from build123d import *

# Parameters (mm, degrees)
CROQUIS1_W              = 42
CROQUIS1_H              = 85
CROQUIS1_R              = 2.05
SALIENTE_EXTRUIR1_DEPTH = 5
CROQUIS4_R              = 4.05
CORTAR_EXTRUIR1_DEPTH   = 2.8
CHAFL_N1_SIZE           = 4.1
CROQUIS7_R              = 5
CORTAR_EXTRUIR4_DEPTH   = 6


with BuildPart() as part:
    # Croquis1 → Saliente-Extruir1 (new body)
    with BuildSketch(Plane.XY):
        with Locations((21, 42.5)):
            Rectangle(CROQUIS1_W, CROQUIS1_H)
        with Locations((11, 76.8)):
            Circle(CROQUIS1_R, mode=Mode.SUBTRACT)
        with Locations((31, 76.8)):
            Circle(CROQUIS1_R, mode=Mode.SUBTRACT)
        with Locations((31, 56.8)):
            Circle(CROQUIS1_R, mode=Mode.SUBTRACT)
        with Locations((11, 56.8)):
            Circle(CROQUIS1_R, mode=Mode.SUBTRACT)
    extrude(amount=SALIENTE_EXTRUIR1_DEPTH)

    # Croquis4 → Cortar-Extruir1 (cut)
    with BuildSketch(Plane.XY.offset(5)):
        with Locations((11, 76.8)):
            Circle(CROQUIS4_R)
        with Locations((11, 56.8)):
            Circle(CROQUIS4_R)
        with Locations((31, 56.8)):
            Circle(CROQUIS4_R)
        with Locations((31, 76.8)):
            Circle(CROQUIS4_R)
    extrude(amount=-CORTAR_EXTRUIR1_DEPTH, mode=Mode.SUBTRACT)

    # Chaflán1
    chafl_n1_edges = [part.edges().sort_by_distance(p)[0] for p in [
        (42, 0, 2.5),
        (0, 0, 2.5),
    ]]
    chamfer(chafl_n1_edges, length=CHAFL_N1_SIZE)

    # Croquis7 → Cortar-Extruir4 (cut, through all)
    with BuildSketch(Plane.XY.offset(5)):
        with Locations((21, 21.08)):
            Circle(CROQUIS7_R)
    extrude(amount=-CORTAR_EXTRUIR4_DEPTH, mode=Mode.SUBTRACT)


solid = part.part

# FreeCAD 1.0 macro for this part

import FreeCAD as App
import Part
import Sketcher

V = App.Vector
Q = App.Units.Quantity


def edges_at(feature, points):
    """Names of the edges that pass closest to the given points."""
    edges = feature.Shape.Edges
    near = lambda p: min(range(len(edges)), key=lambda i: edges[i].distToShape(Part.Vertex(*p))[0])
    return sorted({f"Edge{near(p) + 1}" for p in points})


def add_polygon(sketch, points):
    """Adds a closed chain of lines whose ends are joined by coincident constraints."""
    first, n = sketch.GeometryCount, len(points)
    for a, b in zip(points, points[1:] + points[:1]):
        sketch.addGeometry(Part.LineSegment(App.Vector(*a, 0), App.Vector(*b, 0)), False)
    for i in range(n):
        sketch.addConstraint(Sketcher.Constraint("Coincident", first + i, 2, first + (i + 1) % n, 1))

doc = App.newDocument("Part")
params = doc.addObject("Spreadsheet::Sheet", "Params")
for row, (alias, value) in enumerate([
    ("sketch1_diameter", "4.1 mm"),
    ("sketch1_width", "42 mm"),
    ("sketch1_height", "85 mm"),
    ("pad1_length", "5 mm"),
    ("sketch2_diameter", "8.1 mm"),
    ("pocket1_length", "2.8 mm"),
    ("chamfer_size", "4.1 mm"),
    ("sketch3_diameter", "10 mm"),
], start=1):
    params.set(f"A{row}", alias)
    params.set(f"B{row}", "=" + value)
    params.setAlias(f"B{row}", alias)

body = doc.addObject("PartDesign::Body", "Body")

sketch1 = body.newObject("Sketcher::SketchObject", "Sketch")
sketch1.AttachmentSupport = (doc.getObject("XY_Plane"), [""])
sketch1.MapMode = "FlatFace"
add_polygon(sketch1, [(0, 85), (0, 0), (42, 0), (42, 85)])
sketch1.addGeometry(Part.Circle(V(11, 56.8, 0), V(0, 0, 1), 2), False)
sketch1.addGeometry(Part.Circle(V(31, 56.8, 0), V(0, 0, 1), 2), False)
sketch1.addGeometry(Part.Circle(V(11, 76.8, 0), V(0, 0, 1), 2), False)
sketch1.addGeometry(Part.Circle(V(31, 76.8, 0), V(0, 0, 1), 2), False)
sketch1.addConstraint([
    Sketcher.Constraint("Vertical", 0),
    Sketcher.Constraint("Horizontal", 1),
    Sketcher.Constraint("Vertical", 2),
    Sketcher.Constraint("Horizontal", 3),
    Sketcher.Constraint("Coincident", 0, 2, -1, 1),
    Sketcher.Constraint("Equal", 4, 5),
    Sketcher.Constraint("Equal", 5, 6),
    Sketcher.Constraint("Equal", 6, 7),
    Sketcher.Constraint("Horizontal", 4, 3, 5, 3),
    Sketcher.Constraint("Horizontal", 6, 3, 7, 3),
    Sketcher.Constraint("Vertical", 4, 3, 6, 3),
    Sketcher.Constraint("Vertical", 5, 3, 7, 3),
    Sketcher.Constraint("Diameter", 4, Q("4.1 mm")),
    Sketcher.Constraint("DistanceX", 1, 1, 1, 2, Q("42 mm")),
    Sketcher.Constraint("DistanceY", 0, 2, 0, 1, Q("85 mm")),
    Sketcher.Constraint("DistanceX", -1, 1, 4, 3, Q("11 mm")),
    Sketcher.Constraint("DistanceX", -1, 1, 5, 3, Q("31 mm")),
    Sketcher.Constraint("DistanceY", 4, 3, 6, 3, Q("20 mm")),
    Sketcher.Constraint("DistanceY", -1, 1, 4, 3, Q("56.8 mm")),
])
sketch1.setExpression("Constraints[16]", "Params.sketch1_diameter")
sketch1.setExpression("Constraints[17]", "Params.sketch1_width")
sketch1.setExpression("Constraints[18]", "Params.sketch1_height")
pad1 = body.newObject("PartDesign::Pad", "Pad")
pad1.Profile = sketch1
pad1.setExpression("Length", "Params.pad1_length")

sketch2 = body.newObject("Sketcher::SketchObject", "Sketch001")
sketch2.AttachmentSupport = (doc.getObject("XY_Plane"), [""])
sketch2.MapMode = "FlatFace"
sketch2.AttachmentOffset = App.Placement(V(0, 0, 5), App.Rotation())
sketch2.addGeometry([
    Part.Circle(V(11, 76.8, 0), V(0, 0, 1), 4),
    Part.Circle(V(11, 56.8, 0), V(0, 0, 1), 4),
    Part.Circle(V(31, 56.8, 0), V(0, 0, 1), 4),
    Part.Circle(V(31, 76.8, 0), V(0, 0, 1), 4),
], False)
sketch2.addConstraint([
    Sketcher.Constraint("Equal", 0, 1),
    Sketcher.Constraint("Equal", 1, 2),
    Sketcher.Constraint("Equal", 2, 3),
    Sketcher.Constraint("Horizontal", 1, 3, 2, 3),
    Sketcher.Constraint("Horizontal", 0, 3, 3, 3),
    Sketcher.Constraint("Vertical", 0, 3, 1, 3),
    Sketcher.Constraint("Vertical", 2, 3, 3, 3),
    Sketcher.Constraint("Diameter", 0, Q("8.1 mm")),
    Sketcher.Constraint("DistanceX", -1, 1, 0, 3, Q("11 mm")),
    Sketcher.Constraint("DistanceX", -1, 1, 2, 3, Q("31 mm")),
    Sketcher.Constraint("DistanceY", 1, 3, 0, 3, Q("20 mm")),
    Sketcher.Constraint("DistanceY", -1, 1, 0, 3, Q("76.8 mm")),
])
sketch2.setExpression("Constraints[7]", "Params.sketch2_diameter")
pocket1 = body.newObject("PartDesign::Pocket", "Pocket")
pocket1.Profile = sketch2
pocket1.setExpression("Length", "Params.pocket1_length")
doc.recompute()

chamfer = body.newObject("PartDesign::Chamfer", "Chamfer")
chamfer.Base = (pocket1, edges_at(pocket1, [(42, 0, 2.5), (0, 0, 2.5)]))
chamfer.setExpression("Size", "Params.chamfer_size")

sketch3 = body.newObject("Sketcher::SketchObject", "Sketch002")
sketch3.AttachmentSupport = (doc.getObject("XY_Plane"), [""])
sketch3.MapMode = "FlatFace"
sketch3.AttachmentOffset = App.Placement(V(0, 0, 5), App.Rotation())
sketch3.addGeometry(Part.Circle(V(21, 21, 0), V(0, 0, 1), 5), False)
sketch3.addConstraint([
    Sketcher.Constraint("Diameter", 0, Q("10 mm")),
    Sketcher.Constraint("DistanceX", -1, 1, 0, 3, Q("21 mm")),
    Sketcher.Constraint("DistanceY", -1, 1, 0, 3, Q("21.08 mm")),
])
sketch3.setExpression("Constraints[0]", "Params.sketch3_diameter")
pocket2 = body.newObject("PartDesign::Pocket", "Pocket001")
pocket2.Profile = sketch3
pocket2.Type = "ThroughAll"

doc.recompute()
